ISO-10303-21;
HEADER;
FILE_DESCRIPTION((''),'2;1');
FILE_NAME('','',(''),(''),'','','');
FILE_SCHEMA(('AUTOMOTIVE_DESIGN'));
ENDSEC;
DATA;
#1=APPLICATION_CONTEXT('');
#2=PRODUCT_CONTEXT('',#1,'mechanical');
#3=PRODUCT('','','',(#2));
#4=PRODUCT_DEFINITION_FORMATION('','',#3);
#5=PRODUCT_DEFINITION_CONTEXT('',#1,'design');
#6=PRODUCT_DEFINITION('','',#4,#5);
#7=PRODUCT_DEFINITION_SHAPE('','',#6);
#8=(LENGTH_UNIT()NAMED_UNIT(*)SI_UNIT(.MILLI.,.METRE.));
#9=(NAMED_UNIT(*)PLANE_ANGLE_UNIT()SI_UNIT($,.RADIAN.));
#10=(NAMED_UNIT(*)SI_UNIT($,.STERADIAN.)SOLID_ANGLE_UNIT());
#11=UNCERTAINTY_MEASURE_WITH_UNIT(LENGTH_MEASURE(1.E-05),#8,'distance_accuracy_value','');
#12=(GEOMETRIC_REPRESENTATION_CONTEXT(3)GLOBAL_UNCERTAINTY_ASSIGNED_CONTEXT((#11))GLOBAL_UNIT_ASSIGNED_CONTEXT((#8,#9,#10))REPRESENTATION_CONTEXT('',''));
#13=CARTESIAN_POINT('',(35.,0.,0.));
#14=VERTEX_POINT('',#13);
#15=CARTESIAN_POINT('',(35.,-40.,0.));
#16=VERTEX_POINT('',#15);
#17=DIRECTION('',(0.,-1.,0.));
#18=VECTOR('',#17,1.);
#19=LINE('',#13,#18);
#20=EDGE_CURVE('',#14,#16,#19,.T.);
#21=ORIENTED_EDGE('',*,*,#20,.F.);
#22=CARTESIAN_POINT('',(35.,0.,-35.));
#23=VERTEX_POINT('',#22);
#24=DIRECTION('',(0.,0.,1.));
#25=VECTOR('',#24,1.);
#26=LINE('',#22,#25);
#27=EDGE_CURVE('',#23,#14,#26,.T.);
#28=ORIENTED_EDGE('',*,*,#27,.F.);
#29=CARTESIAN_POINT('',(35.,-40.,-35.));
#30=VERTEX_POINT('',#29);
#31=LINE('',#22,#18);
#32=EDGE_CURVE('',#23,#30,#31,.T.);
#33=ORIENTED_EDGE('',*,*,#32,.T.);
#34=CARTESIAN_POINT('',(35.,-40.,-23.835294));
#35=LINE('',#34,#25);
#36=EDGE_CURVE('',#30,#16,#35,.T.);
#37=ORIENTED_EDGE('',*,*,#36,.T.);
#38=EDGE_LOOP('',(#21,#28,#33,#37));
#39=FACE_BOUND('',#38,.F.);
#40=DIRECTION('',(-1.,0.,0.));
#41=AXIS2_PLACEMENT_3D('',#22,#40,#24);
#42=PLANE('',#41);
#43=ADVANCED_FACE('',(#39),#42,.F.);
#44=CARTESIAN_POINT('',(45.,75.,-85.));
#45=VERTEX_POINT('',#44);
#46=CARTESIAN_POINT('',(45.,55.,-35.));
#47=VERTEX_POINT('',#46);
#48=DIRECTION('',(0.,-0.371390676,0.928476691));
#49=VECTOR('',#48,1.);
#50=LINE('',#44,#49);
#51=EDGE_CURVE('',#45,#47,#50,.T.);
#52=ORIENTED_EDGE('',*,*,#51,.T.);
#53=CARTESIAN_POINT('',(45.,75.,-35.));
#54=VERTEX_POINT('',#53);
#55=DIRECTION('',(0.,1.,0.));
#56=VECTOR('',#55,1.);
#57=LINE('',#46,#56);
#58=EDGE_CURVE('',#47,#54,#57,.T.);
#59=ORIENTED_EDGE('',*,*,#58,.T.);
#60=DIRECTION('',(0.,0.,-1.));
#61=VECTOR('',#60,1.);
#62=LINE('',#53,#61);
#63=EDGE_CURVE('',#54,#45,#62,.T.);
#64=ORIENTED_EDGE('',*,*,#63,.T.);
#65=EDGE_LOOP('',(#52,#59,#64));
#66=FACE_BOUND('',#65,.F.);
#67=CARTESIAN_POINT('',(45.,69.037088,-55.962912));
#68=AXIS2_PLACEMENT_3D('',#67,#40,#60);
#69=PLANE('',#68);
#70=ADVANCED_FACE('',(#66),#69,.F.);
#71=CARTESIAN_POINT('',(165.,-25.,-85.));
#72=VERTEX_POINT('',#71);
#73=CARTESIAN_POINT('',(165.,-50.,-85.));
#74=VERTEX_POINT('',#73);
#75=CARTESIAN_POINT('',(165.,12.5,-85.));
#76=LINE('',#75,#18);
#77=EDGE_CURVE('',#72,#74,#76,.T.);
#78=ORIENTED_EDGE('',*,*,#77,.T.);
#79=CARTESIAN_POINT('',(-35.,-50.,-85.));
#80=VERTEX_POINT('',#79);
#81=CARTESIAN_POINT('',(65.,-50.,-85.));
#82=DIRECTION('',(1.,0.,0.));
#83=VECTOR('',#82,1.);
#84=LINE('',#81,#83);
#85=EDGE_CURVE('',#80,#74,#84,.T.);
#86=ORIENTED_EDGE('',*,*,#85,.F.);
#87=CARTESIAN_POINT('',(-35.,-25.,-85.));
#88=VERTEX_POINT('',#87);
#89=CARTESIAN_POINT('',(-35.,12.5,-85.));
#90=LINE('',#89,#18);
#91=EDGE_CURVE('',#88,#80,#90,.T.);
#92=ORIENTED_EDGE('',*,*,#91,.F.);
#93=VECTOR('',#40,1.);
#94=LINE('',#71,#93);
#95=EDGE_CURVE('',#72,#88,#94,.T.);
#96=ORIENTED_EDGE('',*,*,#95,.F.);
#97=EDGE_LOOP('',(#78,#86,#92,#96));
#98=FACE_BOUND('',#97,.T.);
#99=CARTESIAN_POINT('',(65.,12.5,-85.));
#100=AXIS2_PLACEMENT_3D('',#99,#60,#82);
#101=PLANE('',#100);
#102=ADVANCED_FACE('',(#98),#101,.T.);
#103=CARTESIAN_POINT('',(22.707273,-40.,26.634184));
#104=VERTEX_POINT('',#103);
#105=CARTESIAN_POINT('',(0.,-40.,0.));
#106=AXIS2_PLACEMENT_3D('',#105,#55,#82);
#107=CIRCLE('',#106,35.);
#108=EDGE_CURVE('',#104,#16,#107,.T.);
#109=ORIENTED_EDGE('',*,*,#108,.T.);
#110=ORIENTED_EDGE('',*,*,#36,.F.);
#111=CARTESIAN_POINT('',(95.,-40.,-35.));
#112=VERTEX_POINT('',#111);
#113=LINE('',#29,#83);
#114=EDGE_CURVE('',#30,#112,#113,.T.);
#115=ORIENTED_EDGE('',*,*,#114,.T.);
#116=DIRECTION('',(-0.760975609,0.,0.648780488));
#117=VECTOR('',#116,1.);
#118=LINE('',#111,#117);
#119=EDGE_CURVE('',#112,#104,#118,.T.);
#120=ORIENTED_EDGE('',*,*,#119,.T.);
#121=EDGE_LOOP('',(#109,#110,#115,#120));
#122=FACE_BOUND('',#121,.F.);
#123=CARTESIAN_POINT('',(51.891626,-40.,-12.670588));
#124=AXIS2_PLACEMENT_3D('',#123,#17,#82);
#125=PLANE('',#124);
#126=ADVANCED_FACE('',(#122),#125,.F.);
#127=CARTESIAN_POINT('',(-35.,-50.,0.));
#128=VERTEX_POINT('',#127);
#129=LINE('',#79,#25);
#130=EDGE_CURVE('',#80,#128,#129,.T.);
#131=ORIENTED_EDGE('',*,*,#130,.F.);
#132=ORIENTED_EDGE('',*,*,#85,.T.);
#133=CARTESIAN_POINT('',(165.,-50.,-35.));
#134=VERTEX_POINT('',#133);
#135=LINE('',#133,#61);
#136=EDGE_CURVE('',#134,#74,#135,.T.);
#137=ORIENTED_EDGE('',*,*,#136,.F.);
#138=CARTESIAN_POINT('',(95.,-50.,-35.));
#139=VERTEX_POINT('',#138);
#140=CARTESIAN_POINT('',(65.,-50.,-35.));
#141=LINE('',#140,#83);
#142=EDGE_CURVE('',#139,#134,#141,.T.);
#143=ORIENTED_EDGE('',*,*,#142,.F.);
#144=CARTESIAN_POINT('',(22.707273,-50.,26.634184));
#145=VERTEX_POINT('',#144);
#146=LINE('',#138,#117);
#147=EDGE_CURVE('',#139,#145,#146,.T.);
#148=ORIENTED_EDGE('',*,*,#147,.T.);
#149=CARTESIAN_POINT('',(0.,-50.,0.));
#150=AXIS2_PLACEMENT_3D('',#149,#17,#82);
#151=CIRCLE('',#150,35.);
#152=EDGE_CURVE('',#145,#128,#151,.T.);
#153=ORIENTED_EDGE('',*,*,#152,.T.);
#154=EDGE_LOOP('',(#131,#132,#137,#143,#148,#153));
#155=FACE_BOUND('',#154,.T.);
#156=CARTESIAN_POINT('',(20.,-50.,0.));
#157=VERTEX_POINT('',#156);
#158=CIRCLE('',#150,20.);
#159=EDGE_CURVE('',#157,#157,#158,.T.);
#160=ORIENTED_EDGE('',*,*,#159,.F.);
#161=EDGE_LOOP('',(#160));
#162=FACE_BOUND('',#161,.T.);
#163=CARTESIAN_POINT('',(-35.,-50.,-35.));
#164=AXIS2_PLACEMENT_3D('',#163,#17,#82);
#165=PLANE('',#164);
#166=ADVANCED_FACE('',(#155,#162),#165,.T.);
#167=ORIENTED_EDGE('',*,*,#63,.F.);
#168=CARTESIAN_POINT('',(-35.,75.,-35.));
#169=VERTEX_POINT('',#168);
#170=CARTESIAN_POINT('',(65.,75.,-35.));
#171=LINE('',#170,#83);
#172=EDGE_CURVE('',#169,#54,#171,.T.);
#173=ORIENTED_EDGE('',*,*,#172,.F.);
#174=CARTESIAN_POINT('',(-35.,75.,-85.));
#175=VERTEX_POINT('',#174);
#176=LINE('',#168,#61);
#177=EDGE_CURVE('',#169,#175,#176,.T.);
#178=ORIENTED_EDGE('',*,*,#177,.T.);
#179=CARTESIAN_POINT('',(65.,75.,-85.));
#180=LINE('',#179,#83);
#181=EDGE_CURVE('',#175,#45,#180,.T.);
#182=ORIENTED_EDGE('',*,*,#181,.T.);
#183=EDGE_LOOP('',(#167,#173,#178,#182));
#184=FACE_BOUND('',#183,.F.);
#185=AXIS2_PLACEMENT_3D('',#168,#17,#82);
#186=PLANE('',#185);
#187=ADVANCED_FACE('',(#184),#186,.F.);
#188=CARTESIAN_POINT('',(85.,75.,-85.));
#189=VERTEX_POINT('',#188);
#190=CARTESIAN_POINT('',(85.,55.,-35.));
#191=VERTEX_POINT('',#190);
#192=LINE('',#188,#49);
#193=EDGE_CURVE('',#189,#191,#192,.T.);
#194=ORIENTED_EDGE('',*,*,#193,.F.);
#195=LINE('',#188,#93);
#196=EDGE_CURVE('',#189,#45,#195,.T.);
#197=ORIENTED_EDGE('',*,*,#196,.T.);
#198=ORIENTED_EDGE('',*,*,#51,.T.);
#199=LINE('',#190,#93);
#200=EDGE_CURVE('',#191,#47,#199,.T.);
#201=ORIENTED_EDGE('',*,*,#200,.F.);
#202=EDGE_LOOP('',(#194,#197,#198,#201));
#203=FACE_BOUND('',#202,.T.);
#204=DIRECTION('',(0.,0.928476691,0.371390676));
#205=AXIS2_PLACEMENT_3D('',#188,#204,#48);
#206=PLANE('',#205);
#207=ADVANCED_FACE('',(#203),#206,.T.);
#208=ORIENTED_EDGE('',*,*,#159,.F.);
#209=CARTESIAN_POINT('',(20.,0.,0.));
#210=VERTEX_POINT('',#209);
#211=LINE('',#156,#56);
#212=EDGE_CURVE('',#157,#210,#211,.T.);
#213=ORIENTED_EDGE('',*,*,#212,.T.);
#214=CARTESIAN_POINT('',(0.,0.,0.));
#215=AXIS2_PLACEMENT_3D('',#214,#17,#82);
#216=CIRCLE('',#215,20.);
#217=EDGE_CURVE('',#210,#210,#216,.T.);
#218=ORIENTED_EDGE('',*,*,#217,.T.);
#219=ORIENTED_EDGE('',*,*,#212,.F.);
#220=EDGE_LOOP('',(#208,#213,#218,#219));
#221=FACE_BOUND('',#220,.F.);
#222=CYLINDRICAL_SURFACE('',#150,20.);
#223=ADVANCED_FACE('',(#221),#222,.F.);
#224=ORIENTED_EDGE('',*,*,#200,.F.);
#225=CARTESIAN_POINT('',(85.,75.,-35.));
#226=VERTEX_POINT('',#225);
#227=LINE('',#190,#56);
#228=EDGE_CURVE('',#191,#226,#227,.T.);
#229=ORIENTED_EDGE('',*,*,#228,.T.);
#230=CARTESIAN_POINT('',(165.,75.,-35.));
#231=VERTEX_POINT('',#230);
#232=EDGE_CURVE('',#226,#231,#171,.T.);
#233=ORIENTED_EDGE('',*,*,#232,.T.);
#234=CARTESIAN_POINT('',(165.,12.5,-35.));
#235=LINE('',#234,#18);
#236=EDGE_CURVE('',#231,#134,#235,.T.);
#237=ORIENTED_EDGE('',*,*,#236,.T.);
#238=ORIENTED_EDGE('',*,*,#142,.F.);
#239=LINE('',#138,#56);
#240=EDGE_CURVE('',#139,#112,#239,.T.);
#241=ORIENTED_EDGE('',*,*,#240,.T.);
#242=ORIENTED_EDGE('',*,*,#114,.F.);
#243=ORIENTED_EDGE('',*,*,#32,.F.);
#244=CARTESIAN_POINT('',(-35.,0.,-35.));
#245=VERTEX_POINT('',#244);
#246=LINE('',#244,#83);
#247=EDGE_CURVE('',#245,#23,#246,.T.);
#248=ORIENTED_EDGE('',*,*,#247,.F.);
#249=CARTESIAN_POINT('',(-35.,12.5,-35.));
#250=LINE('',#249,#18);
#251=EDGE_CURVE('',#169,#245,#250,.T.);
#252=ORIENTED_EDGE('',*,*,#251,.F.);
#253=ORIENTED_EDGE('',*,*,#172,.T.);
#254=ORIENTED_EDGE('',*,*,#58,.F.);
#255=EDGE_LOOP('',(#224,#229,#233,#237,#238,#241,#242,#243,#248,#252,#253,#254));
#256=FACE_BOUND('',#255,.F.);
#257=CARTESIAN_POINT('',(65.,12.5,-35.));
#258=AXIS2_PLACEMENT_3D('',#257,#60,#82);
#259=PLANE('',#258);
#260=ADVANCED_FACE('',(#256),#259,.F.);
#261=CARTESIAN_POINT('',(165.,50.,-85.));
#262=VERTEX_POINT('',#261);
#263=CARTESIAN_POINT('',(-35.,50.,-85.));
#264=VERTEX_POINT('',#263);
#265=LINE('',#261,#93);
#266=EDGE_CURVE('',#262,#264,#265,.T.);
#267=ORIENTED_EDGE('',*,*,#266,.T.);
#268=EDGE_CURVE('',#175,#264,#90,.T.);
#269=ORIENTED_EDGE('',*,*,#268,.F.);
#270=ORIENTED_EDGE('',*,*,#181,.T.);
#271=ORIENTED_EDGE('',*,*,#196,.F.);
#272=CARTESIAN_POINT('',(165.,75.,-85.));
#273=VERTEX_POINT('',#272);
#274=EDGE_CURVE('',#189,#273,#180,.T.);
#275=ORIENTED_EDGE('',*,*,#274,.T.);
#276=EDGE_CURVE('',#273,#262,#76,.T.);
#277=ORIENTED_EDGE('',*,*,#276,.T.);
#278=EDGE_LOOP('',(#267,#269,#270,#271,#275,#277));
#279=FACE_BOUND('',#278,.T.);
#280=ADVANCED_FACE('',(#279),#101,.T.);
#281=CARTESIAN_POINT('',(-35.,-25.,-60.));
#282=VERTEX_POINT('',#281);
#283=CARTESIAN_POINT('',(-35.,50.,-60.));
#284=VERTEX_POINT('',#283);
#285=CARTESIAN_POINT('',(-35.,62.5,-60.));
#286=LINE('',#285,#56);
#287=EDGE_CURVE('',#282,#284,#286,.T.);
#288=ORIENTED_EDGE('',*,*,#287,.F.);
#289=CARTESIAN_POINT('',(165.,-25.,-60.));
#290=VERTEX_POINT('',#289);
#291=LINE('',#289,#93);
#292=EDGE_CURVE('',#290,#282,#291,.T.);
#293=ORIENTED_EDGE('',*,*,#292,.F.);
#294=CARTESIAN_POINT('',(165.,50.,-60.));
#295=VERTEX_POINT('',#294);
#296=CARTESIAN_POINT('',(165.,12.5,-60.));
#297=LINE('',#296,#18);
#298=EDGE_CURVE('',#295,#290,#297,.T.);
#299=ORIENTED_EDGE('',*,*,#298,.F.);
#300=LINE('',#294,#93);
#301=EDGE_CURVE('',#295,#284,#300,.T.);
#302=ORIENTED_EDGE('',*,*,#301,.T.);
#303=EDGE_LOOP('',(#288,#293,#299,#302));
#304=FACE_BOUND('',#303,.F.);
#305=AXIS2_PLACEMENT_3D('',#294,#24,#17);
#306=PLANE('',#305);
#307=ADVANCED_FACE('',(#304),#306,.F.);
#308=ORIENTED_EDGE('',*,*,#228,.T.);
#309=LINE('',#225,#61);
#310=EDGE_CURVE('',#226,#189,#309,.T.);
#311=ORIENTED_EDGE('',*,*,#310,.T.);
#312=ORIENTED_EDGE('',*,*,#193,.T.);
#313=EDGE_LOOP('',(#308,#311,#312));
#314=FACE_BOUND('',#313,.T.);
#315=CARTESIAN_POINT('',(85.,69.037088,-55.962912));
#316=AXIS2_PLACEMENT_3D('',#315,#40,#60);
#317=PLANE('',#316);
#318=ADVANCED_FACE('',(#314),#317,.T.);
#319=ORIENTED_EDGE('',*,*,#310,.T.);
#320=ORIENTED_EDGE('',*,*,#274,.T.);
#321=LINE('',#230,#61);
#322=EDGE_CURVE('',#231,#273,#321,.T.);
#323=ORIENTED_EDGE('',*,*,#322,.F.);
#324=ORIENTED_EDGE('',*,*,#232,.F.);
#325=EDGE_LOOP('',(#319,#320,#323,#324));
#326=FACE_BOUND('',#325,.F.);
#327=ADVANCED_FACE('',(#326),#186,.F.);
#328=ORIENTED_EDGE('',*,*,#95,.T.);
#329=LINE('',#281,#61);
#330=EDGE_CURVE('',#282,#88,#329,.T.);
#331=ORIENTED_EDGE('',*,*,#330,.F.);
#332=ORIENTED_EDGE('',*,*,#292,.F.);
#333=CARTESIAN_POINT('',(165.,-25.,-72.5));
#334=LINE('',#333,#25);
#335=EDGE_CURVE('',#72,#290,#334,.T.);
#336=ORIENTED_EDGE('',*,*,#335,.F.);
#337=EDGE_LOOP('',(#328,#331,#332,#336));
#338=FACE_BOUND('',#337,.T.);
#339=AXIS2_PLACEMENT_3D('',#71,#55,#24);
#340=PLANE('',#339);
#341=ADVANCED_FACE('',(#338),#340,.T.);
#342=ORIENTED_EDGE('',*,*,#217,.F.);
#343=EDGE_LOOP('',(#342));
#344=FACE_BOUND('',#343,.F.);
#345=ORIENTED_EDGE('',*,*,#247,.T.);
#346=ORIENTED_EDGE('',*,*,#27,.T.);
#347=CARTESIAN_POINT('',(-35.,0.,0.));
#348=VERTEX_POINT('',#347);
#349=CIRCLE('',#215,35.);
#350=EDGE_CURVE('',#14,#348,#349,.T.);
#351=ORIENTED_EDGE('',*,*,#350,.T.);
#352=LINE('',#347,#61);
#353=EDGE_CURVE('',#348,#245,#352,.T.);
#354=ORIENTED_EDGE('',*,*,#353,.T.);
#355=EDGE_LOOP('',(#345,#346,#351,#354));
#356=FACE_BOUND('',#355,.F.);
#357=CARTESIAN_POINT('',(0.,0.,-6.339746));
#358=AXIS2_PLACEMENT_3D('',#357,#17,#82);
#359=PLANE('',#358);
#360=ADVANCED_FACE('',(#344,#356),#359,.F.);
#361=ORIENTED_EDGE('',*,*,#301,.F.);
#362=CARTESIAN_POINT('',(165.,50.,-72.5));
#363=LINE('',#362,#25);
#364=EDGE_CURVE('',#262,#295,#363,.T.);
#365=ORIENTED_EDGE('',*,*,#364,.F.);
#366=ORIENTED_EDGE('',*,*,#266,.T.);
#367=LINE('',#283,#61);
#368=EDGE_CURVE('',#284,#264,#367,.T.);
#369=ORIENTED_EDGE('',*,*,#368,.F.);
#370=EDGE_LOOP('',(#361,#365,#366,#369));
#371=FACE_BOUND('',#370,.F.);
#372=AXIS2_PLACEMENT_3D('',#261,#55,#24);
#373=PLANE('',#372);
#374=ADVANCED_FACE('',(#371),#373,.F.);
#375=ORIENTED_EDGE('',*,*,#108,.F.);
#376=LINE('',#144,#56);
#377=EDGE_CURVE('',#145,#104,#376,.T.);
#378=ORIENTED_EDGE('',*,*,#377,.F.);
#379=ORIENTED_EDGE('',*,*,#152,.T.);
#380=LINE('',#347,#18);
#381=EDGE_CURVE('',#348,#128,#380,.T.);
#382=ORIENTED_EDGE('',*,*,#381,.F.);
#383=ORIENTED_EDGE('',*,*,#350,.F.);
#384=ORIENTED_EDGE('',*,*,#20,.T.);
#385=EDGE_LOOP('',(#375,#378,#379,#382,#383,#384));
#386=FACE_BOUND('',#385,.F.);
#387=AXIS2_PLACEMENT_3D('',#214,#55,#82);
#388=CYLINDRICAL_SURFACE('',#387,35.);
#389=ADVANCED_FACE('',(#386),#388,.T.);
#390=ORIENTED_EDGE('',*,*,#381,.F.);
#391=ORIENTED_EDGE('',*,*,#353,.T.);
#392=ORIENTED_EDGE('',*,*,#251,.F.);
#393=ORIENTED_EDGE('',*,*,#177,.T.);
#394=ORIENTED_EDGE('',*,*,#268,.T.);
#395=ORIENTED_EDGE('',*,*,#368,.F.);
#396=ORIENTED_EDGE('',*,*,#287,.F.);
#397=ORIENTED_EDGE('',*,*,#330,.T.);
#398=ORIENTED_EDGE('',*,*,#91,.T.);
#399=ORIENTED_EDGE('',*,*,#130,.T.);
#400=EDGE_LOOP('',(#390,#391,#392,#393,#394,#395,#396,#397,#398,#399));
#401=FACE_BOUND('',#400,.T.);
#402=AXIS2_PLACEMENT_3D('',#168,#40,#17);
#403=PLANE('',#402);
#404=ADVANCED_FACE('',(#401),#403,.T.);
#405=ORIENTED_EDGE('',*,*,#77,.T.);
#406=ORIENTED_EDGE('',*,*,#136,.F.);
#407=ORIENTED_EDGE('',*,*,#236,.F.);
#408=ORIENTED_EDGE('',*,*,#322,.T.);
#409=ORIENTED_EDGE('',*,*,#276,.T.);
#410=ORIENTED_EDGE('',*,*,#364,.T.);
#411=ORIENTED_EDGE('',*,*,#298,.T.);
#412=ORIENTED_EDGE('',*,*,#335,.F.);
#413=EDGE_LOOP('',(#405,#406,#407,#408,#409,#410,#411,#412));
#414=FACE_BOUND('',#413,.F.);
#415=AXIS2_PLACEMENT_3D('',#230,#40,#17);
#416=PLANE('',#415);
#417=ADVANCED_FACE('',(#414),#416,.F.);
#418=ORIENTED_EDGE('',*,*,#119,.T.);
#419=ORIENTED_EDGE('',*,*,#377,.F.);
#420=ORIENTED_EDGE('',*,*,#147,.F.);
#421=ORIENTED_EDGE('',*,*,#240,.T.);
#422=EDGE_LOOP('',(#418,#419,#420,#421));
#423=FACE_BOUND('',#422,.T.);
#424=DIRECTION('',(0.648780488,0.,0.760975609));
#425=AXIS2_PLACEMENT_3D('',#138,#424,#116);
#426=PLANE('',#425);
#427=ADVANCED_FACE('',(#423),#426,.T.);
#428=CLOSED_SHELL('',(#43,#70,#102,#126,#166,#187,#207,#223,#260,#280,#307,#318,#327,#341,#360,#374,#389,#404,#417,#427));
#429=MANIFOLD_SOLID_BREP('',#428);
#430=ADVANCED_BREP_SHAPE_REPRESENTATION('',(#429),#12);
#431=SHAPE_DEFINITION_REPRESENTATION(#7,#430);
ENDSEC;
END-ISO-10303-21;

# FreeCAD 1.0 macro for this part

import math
import FreeCAD as App
import Part
import Sketcher

doc = App.newDocument("Part")
body = doc.addObject("PartDesign::Body", "Body")

sketch1 = doc.addObject("Sketcher::SketchObject", "Sketch")
body.addObject(sketch1)
sketch1.AttachmentSupport = (doc.XZ_Plane, [""])
sketch1.MapMode = "FlatFace"
sketch1.addGeometry([
    Part.LineSegment(App.Vector(-35, -35, 0), App.Vector(35, -35, 0)),
    Part.LineSegment(App.Vector(35, -35, 0), App.Vector(35, 0, 0)),
    Part.ArcOfCircle(Part.Circle(App.Vector(0, 0, 0), App.Vector(0, 0, 1), 35), math.radians(0), math.radians(180)),
    Part.LineSegment(App.Vector(-35, 0, 0), App.Vector(-35, -35, 0)),
], False)
sketch1.addConstraint([
    Sketcher.Constraint("Coincident", 0, 2, 1, 1),
    Sketcher.Constraint("Tangent", 1, 2, 2, 1),
    Sketcher.Constraint("Tangent", 2, 2, 3, 1),
    Sketcher.Constraint("Coincident", 3, 2, 0, 1),
    Sketcher.Constraint("Horizontal", 0),
    Sketcher.Constraint("Vertical", 1),
    Sketcher.Constraint("Vertical", 3),
    Sketcher.Constraint("Coincident", 2, 3, -1, 1),
    Sketcher.Constraint("Radius", 2, 35.0),
    Sketcher.Constraint("DistanceY", 1, 1, 1, 2, 35.0),
])
pad1 = doc.addObject("PartDesign::Pad", "Pad")
body.addObject(pad1)
pad1.Profile = sketch1
pad1.Length = 50

sketch2 = doc.addObject("Sketcher::SketchObject", "Sketch001")
body.addObject(sketch2)
sketch2.AttachmentSupport = (doc.XZ_Plane, [""])
sketch2.MapMode = "FlatFace"
sketch2.AttachmentOffset = App.Placement(App.Vector(0, 0, 50), App.Rotation())
sketch2.addGeometry(Part.Circle(App.Vector(0, 0, 0), App.Vector(0, 0, 1), 20), False)
sketch2.addConstraint([
    Sketcher.Constraint("Coincident", 0, 3, -1, 1),
    Sketcher.Constraint("Diameter", 0, 40.0),
])
pocket1 = doc.addObject("PartDesign::Pocket", "Pocket")
body.addObject(pocket1)
pocket1.Profile = sketch2
pocket1.Type = "ThroughAll"
pocket1.Midplane = True

sketch3 = doc.addObject("Sketcher::SketchObject", "Sketch002")
body.addObject(sketch3)
sketch3.AttachmentSupport = (doc.XZ_Plane, [""])
sketch3.MapMode = "FlatFace"
sketch3.AttachmentOffset = App.Placement(App.Vector(0, 0, 50), App.Rotation())
sketch3.addGeometry([
    Part.LineSegment(App.Vector(35, -35, 0), App.Vector(95, -35, 0)),
    Part.LineSegment(App.Vector(95, -35, 0), App.Vector(22.707273, 26.634184, 0)),
    Part.LineSegment(App.Vector(22.707273, 26.634184, 0), App.Vector(35, -35, 0)),
], False)
sketch3.addConstraint([
    Sketcher.Constraint("Coincident", 0, 2, 1, 1),
    Sketcher.Constraint("Coincident", 1, 2, 2, 1),
    Sketcher.Constraint("Coincident", 2, 2, 0, 1),
    Sketcher.Constraint("Horizontal", 0),
    Sketcher.Constraint("DistanceX", 0, 1, 0, 2, 60.0),
    Sketcher.Constraint("DistanceX", -1, 1, 0, 2, 95.0),
    Sketcher.Constraint("DistanceY", 0, 2, -1, 1, 35.0),
    Sketcher.Constraint("Distance", 2, 62.848101),
    Sketcher.Constraint("Distance", 1, 95.000058),
])
pad2 = doc.addObject("PartDesign::Pad", "Pad001")
body.addObject(pad2)
pad2.Profile = sketch3
pad2.Length = 10
pad2.Reversed = True

sketch4 = doc.addObject("Sketcher::SketchObject", "Sketch003")
body.addObject(sketch4)
sketch4.AttachmentSupport = (doc.XY_Plane, [""])
sketch4.MapMode = "FlatFace"
sketch4.AttachmentOffset = App.Placement(App.Vector(0, 0, -35), App.Rotation())
sketch4.addGeometry([
    Part.LineSegment(App.Vector(-35, -50, 0), App.Vector(-35, 75, 0)),
    Part.LineSegment(App.Vector(-35, 75, 0), App.Vector(165, 75, 0)),
    Part.LineSegment(App.Vector(165, 75, 0), App.Vector(165, -50, 0)),
    Part.LineSegment(App.Vector(165, -50, 0), App.Vector(-35, -50, 0)),
], False)
sketch4.addConstraint([
    Sketcher.Constraint("Coincident", 0, 2, 1, 1),
    Sketcher.Constraint("Coincident", 1, 2, 2, 1),
    Sketcher.Constraint("Coincident", 2, 2, 3, 1),
    Sketcher.Constraint("Coincident", 3, 2, 0, 1),
    Sketcher.Constraint("Vertical", 0),
    Sketcher.Constraint("Horizontal", 1),
    Sketcher.Constraint("Vertical", 2),
    Sketcher.Constraint("Horizontal", 3),
    Sketcher.Constraint("DistanceX", 1, 1, 1, 2, 200.0),
    Sketcher.Constraint("DistanceY", 0, 1, 0, 2, 125.0),
    Sketcher.Constraint("DistanceX", 0, 2, -1, 1, 35.0),
    Sketcher.Constraint("DistanceY", -1, 1, 0, 2, 75.0),
])
pad3 = doc.addObject("PartDesign::Pad", "Pad002")
body.addObject(pad3)
pad3.Profile = sketch4
pad3.Length = 50
pad3.Reversed = True

sketch5 = doc.addObject("Sketcher::SketchObject", "Sketch004")
body.addObject(sketch5)
sketch5.AttachmentSupport = (doc.YZ_Plane, [""])
sketch5.MapMode = "FlatFace"
sketch5.AttachmentOffset = App.Placement(App.Vector(0, 0, 165), App.Rotation())
sketch5.addGeometry([
    Part.LineSegment(App.Vector(-25, -85, 0), App.Vector(50, -85, 0)),
    Part.LineSegment(App.Vector(50, -85, 0), App.Vector(50, -60, 0)),
    Part.LineSegment(App.Vector(50, -60, 0), App.Vector(-25, -60, 0)),
    Part.LineSegment(App.Vector(-25, -60, 0), App.Vector(-25, -85, 0)),
], False)
sketch5.addConstraint([
    Sketcher.Constraint("Coincident", 0, 2, 1, 1),
    Sketcher.Constraint("Coincident", 1, 2, 2, 1),
    Sketcher.Constraint("Coincident", 2, 2, 3, 1),
    Sketcher.Constraint("Coincident", 3, 2, 0, 1),
    Sketcher.Constraint("Horizontal", 0),
    Sketcher.Constraint("Vertical", 1),
    Sketcher.Constraint("Horizontal", 2),
    Sketcher.Constraint("Vertical", 3),
    Sketcher.Constraint("DistanceX", 0, 1, 0, 2, 75.0),
    Sketcher.Constraint("DistanceY", 1, 1, 1, 2, 25.0),
    Sketcher.Constraint("DistanceX", -1, 1, 0, 2, 50.0),
    Sketcher.Constraint("DistanceY", 0, 2, -1, 1, 85.0),
])
pocket2 = doc.addObject("PartDesign::Pocket", "Pocket001")
body.addObject(pocket2)
pocket2.Profile = sketch5
pocket2.Type = "ThroughAll"

sketch6 = doc.addObject("Sketcher::SketchObject", "Sketch005")
body.addObject(sketch6)
sketch6.AttachmentSupport = (doc.YZ_Plane, [""])
sketch6.MapMode = "FlatFace"
sketch6.AttachmentOffset = App.Placement(App.Vector(0, 0, 85), App.Rotation())
sketch6.addGeometry([
    Part.LineSegment(App.Vector(75, -35, 0), App.Vector(55, -35, 0)),
    Part.LineSegment(App.Vector(55, -35, 0), App.Vector(75, -85, 0)),
    Part.LineSegment(App.Vector(75, -85, 0), App.Vector(75, -35, 0)),
], False)
sketch6.addConstraint([
    Sketcher.Constraint("Coincident", 0, 2, 1, 1),
    Sketcher.Constraint("Coincident", 1, 2, 2, 1),
    Sketcher.Constraint("Coincident", 2, 2, 0, 1),
    Sketcher.Constraint("Horizontal", 0),
    Sketcher.Constraint("Vertical", 2),
    Sketcher.Constraint("DistanceX", 0, 2, 0, 1, 20.0),
    Sketcher.Constraint("DistanceY", 2, 1, 2, 2, 50.0),
    Sketcher.Constraint("DistanceX", -1, 1, 0, 2, 55.0),
    Sketcher.Constraint("DistanceY", 0, 2, -1, 1, 35.0),
])
pocket3 = doc.addObject("PartDesign::Pocket", "Pocket002")
body.addObject(pocket3)
pocket3.Profile = sketch6
pocket3.Length = 40

doc.recompute()
